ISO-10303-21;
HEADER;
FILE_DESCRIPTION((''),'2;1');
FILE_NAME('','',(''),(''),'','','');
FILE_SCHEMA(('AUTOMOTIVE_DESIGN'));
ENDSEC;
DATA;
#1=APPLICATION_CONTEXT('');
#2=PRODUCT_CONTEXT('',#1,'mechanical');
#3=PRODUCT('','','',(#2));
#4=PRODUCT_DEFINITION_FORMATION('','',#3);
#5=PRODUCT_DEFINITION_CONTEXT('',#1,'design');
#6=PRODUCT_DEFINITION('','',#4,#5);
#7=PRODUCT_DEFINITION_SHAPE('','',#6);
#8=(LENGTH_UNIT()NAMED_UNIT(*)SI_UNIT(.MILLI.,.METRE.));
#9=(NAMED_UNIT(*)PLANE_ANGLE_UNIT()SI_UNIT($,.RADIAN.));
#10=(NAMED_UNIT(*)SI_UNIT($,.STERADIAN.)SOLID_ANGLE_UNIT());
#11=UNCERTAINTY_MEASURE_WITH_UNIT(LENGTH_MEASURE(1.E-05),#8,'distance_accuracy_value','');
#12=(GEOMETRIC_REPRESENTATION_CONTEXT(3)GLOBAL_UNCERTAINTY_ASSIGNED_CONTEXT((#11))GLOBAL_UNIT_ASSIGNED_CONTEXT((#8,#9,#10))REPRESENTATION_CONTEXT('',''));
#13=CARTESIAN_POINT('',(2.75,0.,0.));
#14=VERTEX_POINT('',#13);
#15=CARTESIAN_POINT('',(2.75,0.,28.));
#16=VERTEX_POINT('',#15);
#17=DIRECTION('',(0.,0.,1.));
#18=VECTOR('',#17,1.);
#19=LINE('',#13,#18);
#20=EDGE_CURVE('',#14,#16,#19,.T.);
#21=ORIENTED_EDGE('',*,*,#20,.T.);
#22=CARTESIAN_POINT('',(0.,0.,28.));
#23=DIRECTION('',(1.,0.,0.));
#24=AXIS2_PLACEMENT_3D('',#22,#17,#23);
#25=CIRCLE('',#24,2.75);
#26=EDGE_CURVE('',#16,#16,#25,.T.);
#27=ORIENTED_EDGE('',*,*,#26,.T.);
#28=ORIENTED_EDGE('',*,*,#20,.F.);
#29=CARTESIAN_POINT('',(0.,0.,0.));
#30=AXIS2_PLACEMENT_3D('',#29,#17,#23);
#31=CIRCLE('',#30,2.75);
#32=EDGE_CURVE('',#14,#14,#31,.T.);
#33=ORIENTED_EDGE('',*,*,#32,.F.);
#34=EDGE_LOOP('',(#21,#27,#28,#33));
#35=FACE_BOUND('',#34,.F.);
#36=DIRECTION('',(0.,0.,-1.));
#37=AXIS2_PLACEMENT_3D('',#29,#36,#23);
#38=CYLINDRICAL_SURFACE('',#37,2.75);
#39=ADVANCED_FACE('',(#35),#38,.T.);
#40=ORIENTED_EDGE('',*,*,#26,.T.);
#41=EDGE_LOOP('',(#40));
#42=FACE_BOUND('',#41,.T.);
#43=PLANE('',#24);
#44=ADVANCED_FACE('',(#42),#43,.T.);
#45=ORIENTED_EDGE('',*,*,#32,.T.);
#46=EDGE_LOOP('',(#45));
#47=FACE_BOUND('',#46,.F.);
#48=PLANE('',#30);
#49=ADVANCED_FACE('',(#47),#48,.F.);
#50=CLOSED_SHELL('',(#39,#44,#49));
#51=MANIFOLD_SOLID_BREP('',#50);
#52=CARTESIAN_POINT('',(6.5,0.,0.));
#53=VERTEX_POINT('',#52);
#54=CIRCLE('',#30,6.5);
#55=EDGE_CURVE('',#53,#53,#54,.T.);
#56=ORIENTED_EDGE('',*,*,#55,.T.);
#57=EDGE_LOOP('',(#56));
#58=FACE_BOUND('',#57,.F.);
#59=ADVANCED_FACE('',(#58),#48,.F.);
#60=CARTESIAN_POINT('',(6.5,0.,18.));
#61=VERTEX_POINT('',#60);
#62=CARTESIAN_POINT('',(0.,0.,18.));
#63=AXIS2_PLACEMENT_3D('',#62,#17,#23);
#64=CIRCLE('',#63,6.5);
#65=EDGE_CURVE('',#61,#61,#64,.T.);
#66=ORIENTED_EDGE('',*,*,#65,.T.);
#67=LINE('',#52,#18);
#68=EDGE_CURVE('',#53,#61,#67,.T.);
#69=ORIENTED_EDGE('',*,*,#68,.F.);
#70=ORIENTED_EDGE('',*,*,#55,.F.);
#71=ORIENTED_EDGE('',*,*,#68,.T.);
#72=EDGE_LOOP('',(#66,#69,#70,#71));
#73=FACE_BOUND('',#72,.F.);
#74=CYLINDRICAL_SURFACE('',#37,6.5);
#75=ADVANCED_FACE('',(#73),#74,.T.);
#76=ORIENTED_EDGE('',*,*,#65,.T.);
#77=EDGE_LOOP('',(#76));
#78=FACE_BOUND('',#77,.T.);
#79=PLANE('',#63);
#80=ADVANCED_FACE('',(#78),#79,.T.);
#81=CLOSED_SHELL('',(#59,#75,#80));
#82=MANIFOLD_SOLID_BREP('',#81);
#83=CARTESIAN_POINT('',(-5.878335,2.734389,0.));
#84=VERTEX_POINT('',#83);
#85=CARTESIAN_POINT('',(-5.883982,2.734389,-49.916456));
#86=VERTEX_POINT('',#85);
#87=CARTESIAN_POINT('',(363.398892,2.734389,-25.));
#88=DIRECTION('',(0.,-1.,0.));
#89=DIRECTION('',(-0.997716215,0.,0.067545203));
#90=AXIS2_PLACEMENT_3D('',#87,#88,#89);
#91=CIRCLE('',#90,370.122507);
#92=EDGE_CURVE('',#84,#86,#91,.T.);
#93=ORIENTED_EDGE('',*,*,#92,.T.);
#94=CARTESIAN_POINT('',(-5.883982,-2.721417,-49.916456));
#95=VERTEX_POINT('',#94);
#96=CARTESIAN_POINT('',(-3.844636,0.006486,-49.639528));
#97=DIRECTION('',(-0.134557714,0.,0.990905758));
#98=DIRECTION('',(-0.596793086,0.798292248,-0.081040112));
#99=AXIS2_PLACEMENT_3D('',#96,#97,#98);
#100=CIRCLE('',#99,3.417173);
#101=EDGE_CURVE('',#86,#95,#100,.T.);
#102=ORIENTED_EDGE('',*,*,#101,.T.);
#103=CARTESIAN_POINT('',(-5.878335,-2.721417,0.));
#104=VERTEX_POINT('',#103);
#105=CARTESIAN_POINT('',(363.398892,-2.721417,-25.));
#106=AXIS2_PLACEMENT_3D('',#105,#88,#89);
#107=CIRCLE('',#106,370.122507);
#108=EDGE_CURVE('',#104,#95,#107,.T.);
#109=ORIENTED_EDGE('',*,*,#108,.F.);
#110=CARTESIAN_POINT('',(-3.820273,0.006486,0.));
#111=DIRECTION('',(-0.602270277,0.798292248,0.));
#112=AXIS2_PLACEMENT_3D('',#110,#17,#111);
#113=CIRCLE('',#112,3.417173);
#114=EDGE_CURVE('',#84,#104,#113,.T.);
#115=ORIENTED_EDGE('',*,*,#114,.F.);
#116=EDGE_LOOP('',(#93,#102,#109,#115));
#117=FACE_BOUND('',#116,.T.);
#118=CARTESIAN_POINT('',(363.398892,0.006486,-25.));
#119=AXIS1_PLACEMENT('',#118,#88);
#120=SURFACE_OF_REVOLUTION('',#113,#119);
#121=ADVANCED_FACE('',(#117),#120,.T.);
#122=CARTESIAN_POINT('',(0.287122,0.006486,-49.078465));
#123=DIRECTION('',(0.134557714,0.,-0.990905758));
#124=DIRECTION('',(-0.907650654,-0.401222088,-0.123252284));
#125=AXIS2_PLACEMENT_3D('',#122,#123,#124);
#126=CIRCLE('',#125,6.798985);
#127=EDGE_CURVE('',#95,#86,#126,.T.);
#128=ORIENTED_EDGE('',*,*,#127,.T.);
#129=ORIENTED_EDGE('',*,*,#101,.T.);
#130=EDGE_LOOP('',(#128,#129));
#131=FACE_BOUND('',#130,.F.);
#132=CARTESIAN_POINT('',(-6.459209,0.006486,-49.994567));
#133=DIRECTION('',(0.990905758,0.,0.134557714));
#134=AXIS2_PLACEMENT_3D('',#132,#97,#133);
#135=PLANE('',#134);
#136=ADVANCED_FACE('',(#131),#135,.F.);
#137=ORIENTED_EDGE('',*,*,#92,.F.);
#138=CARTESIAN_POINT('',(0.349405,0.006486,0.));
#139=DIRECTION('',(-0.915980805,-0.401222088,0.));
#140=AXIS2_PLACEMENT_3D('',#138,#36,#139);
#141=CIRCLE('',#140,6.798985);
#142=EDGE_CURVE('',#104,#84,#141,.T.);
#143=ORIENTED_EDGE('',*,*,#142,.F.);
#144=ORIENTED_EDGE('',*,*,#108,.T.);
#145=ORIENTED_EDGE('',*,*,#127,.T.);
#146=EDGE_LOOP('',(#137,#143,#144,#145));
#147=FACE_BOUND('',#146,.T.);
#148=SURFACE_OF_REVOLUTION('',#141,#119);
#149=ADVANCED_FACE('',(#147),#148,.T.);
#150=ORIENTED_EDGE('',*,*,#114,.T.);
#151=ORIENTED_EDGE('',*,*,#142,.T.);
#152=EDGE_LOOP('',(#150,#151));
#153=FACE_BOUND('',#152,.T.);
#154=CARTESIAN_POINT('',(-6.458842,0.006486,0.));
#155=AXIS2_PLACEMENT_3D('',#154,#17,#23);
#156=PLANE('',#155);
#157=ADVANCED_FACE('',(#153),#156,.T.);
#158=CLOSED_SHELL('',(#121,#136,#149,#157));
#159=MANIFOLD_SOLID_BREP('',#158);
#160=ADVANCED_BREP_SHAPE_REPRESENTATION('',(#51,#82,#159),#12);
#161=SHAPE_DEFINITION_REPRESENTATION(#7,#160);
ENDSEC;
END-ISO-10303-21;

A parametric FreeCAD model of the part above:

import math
import FreeCAD as App
import Part
import Sketcher

doc = App.newDocument("Part")
body = doc.addObject("PartDesign::Body", "Body")

# Sketch on XY plane
sketch1 = body.newObject("Sketcher::SketchObject", "Sketch")
sketch1.AttachmentSupport = (doc.getObject("XY_Plane"), [""])
sketch1.MapMode = "FlatFace"
sketch1.addGeometry(Part.Circle(App.Vector(0, 0, 0), App.Vector(0, 0, 1), 2.8), False)
sketch1.addConstraint(Sketcher.Constraint("Coincident", 0, 3, -1, 1))
sketch1.addConstraint(Sketcher.Constraint("Diameter", 0, 5.5))
pad1 = body.newObject("PartDesign::Pad", "Pad")
pad1.Profile = sketch1
pad1.Length = 28
body2 = doc.addObject("PartDesign::Body", "Body001")

# Sketch on XY plane
sketch2 = body2.newObject("Sketcher::SketchObject", "Sketch001")
sketch2.AttachmentSupport = (doc.getObject("XY_Plane001"), [""])
sketch2.MapMode = "FlatFace"
sketch2.addGeometry(Part.Circle(App.Vector(0, 0, 0), App.Vector(0, 0, 1), 6), False)
sketch2.addConstraint(Sketcher.Constraint("Coincident", 0, 3, -1, 1))
sketch2.addConstraint(Sketcher.Constraint("Diameter", 0, 13.0))
pad2 = body2.newObject("PartDesign::Pad", "Pad001")
pad2.Profile = sketch2
pad2.Length = 18
body3 = doc.addObject("PartDesign::Body", "Body002")

# Sketch on XY plane
sketch3 = body3.newObject("Sketcher::SketchObject", "Sketch002")
sketch3.AttachmentSupport = (doc.getObject("XY_Plane002"), [""])
sketch3.MapMode = "FlatFace"
sketch3.addGeometry(Part.ArcOfCircle(Part.Circle(App.Vector(0.3, 0, 0), App.Vector(0, 0, 1), 6.8), math.radians(156), math.radians(204)), False)
sketch3.addGeometry(Part.ArcOfCircle(Part.Circle(App.Vector(-3.8, 0, 0), App.Vector(0, 0, 1), 3.4), math.radians(127), math.radians(233)), False)
sketch3.addConstraint(Sketcher.Constraint("Coincident", 0, 1, 1, 1))
sketch3.addConstraint(Sketcher.Constraint("Coincident", 1, 2, 0, 2))
sketch3.addConstraint(Sketcher.Constraint("Horizontal", 0, 3, 1, 3))
sketch3.addConstraint(Sketcher.Constraint("Radius", 0, 6.798985))
sketch3.addConstraint(Sketcher.Constraint("Radius", 1, 3.417173))
sketch3.addConstraint(Sketcher.Constraint("DistanceY", -1, 1, 0, 1, 2.734389))
sketch3.addConstraint(Sketcher.Constraint("DistanceX", 1, 3, 0, 3, 4.169678))
sketch3.addConstraint(Sketcher.Constraint("DistanceX", -1, 1, 0, 3, 0.349405))

# Sketch on XZ plane
sketch4 = body3.newObject("Sketcher::SketchObject", "Sketch003")
sketch4.AttachmentSupport = (doc.getObject("XZ_Plane002"), [""])
sketch4.MapMode = "FlatFace"
sketch4.addGeometry(Part.ArcOfCircle(Part.Circle(App.Vector(363, -25, 0), App.Vector(0, 0, 1), 371), math.radians(176.13), math.radians(183.87)), False)
sketch4.addConstraint(Sketcher.Constraint("PointOnObject", 0, 1, -1))
sketch4.addConstraint(Sketcher.Constraint("DistanceY", 0, 3, -1, 1, 25.0))
sketch4.addConstraint(Sketcher.Constraint("DistanceY", 0, 2, -1, 1, 50.0))
sketch4.addConstraint(Sketcher.Constraint("Radius", 0, 370.741972))
sketch4.addConstraint(Sketcher.Constraint("DistanceX", -1, 1, 0, 3, 363.398892))
doc.recompute()

additivepipe = body3.newObject("PartDesign::AdditivePipe", "AdditivePipe")
additivepipe.Profile = sketch3
additivepipe.Spine = (sketch4, ["Edge1"])

doc.recompute()
